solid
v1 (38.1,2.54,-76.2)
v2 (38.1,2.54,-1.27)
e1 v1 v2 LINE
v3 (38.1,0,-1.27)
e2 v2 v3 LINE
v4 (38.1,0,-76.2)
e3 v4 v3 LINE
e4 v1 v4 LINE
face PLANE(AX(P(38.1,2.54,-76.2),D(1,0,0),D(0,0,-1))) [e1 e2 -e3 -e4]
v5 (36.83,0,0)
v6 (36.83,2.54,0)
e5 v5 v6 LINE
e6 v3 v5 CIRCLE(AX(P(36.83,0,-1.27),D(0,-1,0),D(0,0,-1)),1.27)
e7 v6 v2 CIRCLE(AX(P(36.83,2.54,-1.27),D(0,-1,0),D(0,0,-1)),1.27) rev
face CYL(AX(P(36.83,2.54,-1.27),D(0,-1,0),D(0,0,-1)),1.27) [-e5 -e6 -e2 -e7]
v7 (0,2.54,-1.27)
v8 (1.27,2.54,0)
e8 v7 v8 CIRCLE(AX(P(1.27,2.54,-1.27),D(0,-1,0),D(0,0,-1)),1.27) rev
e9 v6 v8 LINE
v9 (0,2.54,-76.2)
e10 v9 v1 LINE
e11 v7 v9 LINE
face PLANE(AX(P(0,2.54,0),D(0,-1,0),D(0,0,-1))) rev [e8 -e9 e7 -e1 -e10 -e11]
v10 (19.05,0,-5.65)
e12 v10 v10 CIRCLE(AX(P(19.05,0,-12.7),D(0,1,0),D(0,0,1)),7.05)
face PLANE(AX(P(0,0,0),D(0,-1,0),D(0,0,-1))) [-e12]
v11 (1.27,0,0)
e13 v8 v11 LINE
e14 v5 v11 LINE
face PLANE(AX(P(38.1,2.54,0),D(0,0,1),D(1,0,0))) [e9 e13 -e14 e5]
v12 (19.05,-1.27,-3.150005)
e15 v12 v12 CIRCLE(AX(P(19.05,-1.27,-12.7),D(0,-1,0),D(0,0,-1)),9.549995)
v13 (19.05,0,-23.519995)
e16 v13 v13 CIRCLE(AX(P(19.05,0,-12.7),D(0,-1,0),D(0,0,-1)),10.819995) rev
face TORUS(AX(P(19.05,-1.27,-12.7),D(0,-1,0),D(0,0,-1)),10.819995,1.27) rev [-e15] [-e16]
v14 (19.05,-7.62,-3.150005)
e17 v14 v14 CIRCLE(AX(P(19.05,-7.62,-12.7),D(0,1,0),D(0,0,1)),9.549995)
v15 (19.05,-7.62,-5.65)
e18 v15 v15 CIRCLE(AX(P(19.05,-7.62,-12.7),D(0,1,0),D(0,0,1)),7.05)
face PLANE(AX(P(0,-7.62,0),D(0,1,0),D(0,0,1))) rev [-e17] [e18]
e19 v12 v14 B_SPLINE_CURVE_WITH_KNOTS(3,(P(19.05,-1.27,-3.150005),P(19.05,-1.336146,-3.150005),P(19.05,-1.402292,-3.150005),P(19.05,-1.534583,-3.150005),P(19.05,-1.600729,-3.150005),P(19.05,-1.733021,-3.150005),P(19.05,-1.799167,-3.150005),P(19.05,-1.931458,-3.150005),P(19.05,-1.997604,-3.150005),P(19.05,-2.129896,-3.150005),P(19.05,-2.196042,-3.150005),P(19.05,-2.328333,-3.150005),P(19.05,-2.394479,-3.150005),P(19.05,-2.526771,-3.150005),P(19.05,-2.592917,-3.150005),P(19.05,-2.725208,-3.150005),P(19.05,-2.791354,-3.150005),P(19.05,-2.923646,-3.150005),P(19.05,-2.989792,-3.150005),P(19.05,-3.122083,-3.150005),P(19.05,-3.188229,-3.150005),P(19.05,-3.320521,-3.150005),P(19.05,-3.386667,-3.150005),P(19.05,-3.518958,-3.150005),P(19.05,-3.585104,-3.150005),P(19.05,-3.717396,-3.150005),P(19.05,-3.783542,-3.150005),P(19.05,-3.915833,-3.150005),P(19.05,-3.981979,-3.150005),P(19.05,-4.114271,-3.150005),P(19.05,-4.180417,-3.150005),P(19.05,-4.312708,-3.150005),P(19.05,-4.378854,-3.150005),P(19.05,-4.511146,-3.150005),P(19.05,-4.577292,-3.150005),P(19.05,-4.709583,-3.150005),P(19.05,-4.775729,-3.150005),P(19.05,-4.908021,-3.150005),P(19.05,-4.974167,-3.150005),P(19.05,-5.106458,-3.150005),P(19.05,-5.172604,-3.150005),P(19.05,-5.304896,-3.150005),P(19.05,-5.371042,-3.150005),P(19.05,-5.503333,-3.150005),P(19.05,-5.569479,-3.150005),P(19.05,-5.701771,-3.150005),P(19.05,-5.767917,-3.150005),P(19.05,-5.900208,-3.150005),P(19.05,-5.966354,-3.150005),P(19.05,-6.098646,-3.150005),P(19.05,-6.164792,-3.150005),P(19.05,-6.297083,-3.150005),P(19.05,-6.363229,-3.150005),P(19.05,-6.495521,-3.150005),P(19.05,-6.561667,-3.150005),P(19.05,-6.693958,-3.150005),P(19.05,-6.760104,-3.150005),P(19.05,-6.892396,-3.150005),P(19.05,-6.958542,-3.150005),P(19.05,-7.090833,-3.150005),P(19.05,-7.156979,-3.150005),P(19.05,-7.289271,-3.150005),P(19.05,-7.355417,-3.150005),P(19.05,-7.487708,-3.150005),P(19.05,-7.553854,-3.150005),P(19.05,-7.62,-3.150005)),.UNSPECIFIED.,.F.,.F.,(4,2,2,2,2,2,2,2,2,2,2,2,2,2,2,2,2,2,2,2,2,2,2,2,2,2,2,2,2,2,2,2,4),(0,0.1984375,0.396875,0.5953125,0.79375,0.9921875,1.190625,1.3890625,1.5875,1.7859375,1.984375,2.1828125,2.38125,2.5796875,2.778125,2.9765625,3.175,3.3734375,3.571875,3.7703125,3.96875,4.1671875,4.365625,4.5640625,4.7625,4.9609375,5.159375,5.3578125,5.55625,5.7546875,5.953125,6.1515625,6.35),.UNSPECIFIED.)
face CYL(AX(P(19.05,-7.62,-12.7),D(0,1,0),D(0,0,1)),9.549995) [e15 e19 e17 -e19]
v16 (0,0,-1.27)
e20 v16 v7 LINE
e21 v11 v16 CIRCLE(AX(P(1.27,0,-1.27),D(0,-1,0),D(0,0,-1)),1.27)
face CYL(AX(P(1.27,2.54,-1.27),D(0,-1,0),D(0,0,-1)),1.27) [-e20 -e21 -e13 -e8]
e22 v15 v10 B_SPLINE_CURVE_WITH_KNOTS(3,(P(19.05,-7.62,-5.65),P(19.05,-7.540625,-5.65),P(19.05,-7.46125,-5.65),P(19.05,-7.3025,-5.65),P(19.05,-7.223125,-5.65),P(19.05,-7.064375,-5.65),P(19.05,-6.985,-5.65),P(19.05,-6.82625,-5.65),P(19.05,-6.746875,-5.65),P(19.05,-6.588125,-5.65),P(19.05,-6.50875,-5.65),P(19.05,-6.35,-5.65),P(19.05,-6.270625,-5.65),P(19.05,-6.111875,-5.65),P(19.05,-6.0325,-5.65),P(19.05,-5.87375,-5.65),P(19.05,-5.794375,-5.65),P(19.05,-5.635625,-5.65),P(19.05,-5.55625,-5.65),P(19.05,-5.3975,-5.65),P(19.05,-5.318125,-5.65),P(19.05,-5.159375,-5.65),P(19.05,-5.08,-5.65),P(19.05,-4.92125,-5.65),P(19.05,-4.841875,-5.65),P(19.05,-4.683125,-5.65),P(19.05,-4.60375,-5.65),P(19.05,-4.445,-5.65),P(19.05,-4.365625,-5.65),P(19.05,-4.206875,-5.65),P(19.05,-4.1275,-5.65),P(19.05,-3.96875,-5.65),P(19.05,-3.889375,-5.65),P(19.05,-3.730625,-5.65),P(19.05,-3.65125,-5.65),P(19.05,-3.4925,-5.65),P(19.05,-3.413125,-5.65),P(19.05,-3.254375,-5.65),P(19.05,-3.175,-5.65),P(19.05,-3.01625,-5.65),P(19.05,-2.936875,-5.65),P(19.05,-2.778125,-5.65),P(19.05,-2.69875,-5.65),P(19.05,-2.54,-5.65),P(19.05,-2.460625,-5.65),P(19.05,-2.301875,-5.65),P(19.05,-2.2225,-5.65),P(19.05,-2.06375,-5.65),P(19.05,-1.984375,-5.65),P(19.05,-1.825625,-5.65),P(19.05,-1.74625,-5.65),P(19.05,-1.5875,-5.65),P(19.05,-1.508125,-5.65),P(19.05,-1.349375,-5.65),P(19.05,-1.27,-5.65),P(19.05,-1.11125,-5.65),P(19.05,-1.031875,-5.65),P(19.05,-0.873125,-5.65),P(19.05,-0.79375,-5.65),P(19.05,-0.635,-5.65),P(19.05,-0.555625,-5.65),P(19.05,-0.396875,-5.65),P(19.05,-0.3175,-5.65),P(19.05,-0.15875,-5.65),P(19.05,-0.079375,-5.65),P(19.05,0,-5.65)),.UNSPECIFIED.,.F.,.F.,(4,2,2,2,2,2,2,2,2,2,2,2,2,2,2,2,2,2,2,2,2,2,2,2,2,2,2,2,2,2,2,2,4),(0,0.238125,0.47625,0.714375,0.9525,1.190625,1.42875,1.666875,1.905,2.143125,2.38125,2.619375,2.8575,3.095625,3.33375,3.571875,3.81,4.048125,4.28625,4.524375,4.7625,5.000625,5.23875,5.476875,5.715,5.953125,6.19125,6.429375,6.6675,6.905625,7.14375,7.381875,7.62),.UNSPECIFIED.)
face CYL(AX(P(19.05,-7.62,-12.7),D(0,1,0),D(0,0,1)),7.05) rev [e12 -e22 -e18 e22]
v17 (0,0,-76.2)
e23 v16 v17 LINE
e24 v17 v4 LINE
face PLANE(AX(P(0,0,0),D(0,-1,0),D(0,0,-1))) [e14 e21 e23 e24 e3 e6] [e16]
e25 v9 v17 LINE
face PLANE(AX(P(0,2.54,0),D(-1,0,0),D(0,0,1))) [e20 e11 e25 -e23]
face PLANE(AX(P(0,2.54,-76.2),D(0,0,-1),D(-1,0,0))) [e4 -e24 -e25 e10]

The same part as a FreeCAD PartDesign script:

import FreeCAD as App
import Part
import Sketcher

V = App.Vector
Q = App.Units.Quantity


def edges_at(feature, points):
    """Names of the edges that pass closest to the given points."""
    edges = feature.Shape.Edges
    near = lambda p: min(range(len(edges)), key=lambda i: edges[i].distToShape(Part.Vertex(*p))[0])
    return sorted({f"Edge{near(p) + 1}" for p in points})


def add_polygon(sketch, points):
    """Adds a closed chain of lines whose ends are joined by coincident constraints."""
    first, n = sketch.GeometryCount, len(points)
    for a, b in zip(points, points[1:] + points[:1]):
        sketch.addGeometry(Part.LineSegment(App.Vector(*a, 0), App.Vector(*b, 0)), False)
    for i in range(n):
        sketch.addConstraint(Sketcher.Constraint("Coincident", first + i, 2, first + (i + 1) % n, 1))

doc = App.newDocument("Part")
params = doc.addObject("Spreadsheet::Sheet", "Params")
for row, (alias, value) in enumerate([
    ("sketch1_height", "3 in"),
    ("sketch1_width", "1.5 in"),
    ("pad1_length", "0.1 in"),
    ("pad2_length", "0.3 in"),
    ("fillet_radius", "0.05 in"),
], start=1):
    params.set(f"A{row}", alias)
    params.set(f"B{row}", "=" + value)
    params.setAlias(f"B{row}", alias)

body = doc.addObject("PartDesign::Body", "Body")

# Sketch on XZ plane
sketch1 = body.newObject("Sketcher::SketchObject", "Sketch")
sketch1.AttachmentSupport = (doc.getObject("XZ_Plane"), [""])
sketch1.MapMode = "FlatFace"
add_polygon(sketch1, [(0, -76), (0, 0), (38, 0), (38, -76)])  # lines 0-3
sketch1.addConstraint([
    Sketcher.Constraint("Vertical", 0),
    Sketcher.Constraint("Horizontal", 1),
    Sketcher.Constraint("Vertical", 2),
    Sketcher.Constraint("Horizontal", 3),
    Sketcher.Constraint("Coincident", 0, 2, -1, 1),
    Sketcher.Constraint("DistanceY", 0, 1, 0, 2, Q("3 in")),
    Sketcher.Constraint("DistanceX", 1, 1, 1, 2, Q("1.5 in")),
])
sketch1.setExpression("Constraints[9]", "Params.sketch1_height")
sketch1.setExpression("Constraints[10]", "Params.sketch1_width")
pad1 = body.newObject("PartDesign::Pad", "Pad")
pad1.Profile = sketch1
pad1.setExpression("Length", "Params.pad1_length")
pad1.Reversed = True

# Sketch on XZ plane
sketch2 = body.newObject("Sketcher::SketchObject", "Sketch001")
sketch2.AttachmentSupport = (doc.getObject("XZ_Plane"), [""])
sketch2.MapMode = "FlatFace"
sketch2.addGeometry([
    Part.Circle(V(19, -13, 0), V(0, 0, 1), 10),
    Part.Circle(V(19, -13, 0), V(0, 0, 1), 7),
], False)
sketch2.addConstraint([
    Sketcher.Constraint("Coincident", 1, 3, 0, 3),
    Sketcher.Constraint("DistanceY", 0, 3, -1, 1, Q("0.5 in")),
    Sketcher.Constraint("Diameter", 1, 14.1),
    Sketcher.Constraint("DistanceX", -1, 1, 0, 3, Q("0.75 in")),
    Sketcher.Constraint("Diameter", 0, 19.09999),
])
pad2 = body.newObject("PartDesign::Pad", "Pad001")
pad2.Profile = sketch2
pad2.setExpression("Length", "Params.pad2_length")
doc.recompute()

fillet = body.newObject("PartDesign::Fillet", "Fillet")
fillet.Base = (pad2, edges_at(pad2, [(19.05, 0, -22.25), (0, 1.27, 0), (38.1, 1.27, 0)]))
fillet.setExpression("Radius", "Params.fillet_radius")

doc.recompute()
